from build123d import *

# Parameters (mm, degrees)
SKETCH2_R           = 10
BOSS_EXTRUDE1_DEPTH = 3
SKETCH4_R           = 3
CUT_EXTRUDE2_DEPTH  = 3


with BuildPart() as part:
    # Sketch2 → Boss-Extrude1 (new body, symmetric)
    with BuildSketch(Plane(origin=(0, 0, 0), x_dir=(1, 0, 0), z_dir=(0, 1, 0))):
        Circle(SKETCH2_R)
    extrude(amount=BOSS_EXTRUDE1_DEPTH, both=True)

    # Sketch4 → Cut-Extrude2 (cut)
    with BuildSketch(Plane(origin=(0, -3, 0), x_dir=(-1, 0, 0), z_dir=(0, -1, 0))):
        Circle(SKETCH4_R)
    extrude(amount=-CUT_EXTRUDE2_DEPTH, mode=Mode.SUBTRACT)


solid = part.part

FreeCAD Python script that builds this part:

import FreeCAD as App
import Part
import Sketcher

V = App.Vector

doc = App.newDocument("Part")
body = doc.addObject("PartDesign::Body", "Body")

sketch1 = doc.addObject("Sketcher::SketchObject", "Sketch")
body.addObject(sketch1)
sketch1.AttachmentSupport = (doc.XZ_Plane, [""])
sketch1.MapMode = "FlatFace"
sketch1.addGeometry(Part.Circle(V(0, 0, 0), V(0, 0, 1), 10), False)
sketch1.addConstraint([
    Sketcher.Constraint("Coincident", 0, 3, -1, 1),
    Sketcher.Constraint("Diameter", 0, 20.0),
])
pad1 = doc.addObject("PartDesign::Pad", "Pad")
body.addObject(pad1)
pad1.Profile = sketch1
pad1.Length = 6
pad1.Midplane = True

sketch2 = doc.addObject("Sketcher::SketchObject", "Sketch001")
body.addObject(sketch2)
sketch2.AttachmentSupport = (doc.XZ_Plane, [""])
sketch2.MapMode = "FlatFace"
sketch2.AttachmentOffset = App.Placement(V(0, 0, 3), App.Rotation())
sketch2.addGeometry(Part.Circle(V(0, 0, 0), V(0, 0, 1), 3), False)
sketch2.addConstraint([
    Sketcher.Constraint("Coincident", 0, 3, -1, 1),
    Sketcher.Constraint("Diameter", 0, 6.0),
])
pocket1 = doc.addObject("PartDesign::Pocket", "Pocket")
body.addObject(pocket1)
pocket1.Profile = sketch2
pocket1.Length = 3

doc.recompute()
